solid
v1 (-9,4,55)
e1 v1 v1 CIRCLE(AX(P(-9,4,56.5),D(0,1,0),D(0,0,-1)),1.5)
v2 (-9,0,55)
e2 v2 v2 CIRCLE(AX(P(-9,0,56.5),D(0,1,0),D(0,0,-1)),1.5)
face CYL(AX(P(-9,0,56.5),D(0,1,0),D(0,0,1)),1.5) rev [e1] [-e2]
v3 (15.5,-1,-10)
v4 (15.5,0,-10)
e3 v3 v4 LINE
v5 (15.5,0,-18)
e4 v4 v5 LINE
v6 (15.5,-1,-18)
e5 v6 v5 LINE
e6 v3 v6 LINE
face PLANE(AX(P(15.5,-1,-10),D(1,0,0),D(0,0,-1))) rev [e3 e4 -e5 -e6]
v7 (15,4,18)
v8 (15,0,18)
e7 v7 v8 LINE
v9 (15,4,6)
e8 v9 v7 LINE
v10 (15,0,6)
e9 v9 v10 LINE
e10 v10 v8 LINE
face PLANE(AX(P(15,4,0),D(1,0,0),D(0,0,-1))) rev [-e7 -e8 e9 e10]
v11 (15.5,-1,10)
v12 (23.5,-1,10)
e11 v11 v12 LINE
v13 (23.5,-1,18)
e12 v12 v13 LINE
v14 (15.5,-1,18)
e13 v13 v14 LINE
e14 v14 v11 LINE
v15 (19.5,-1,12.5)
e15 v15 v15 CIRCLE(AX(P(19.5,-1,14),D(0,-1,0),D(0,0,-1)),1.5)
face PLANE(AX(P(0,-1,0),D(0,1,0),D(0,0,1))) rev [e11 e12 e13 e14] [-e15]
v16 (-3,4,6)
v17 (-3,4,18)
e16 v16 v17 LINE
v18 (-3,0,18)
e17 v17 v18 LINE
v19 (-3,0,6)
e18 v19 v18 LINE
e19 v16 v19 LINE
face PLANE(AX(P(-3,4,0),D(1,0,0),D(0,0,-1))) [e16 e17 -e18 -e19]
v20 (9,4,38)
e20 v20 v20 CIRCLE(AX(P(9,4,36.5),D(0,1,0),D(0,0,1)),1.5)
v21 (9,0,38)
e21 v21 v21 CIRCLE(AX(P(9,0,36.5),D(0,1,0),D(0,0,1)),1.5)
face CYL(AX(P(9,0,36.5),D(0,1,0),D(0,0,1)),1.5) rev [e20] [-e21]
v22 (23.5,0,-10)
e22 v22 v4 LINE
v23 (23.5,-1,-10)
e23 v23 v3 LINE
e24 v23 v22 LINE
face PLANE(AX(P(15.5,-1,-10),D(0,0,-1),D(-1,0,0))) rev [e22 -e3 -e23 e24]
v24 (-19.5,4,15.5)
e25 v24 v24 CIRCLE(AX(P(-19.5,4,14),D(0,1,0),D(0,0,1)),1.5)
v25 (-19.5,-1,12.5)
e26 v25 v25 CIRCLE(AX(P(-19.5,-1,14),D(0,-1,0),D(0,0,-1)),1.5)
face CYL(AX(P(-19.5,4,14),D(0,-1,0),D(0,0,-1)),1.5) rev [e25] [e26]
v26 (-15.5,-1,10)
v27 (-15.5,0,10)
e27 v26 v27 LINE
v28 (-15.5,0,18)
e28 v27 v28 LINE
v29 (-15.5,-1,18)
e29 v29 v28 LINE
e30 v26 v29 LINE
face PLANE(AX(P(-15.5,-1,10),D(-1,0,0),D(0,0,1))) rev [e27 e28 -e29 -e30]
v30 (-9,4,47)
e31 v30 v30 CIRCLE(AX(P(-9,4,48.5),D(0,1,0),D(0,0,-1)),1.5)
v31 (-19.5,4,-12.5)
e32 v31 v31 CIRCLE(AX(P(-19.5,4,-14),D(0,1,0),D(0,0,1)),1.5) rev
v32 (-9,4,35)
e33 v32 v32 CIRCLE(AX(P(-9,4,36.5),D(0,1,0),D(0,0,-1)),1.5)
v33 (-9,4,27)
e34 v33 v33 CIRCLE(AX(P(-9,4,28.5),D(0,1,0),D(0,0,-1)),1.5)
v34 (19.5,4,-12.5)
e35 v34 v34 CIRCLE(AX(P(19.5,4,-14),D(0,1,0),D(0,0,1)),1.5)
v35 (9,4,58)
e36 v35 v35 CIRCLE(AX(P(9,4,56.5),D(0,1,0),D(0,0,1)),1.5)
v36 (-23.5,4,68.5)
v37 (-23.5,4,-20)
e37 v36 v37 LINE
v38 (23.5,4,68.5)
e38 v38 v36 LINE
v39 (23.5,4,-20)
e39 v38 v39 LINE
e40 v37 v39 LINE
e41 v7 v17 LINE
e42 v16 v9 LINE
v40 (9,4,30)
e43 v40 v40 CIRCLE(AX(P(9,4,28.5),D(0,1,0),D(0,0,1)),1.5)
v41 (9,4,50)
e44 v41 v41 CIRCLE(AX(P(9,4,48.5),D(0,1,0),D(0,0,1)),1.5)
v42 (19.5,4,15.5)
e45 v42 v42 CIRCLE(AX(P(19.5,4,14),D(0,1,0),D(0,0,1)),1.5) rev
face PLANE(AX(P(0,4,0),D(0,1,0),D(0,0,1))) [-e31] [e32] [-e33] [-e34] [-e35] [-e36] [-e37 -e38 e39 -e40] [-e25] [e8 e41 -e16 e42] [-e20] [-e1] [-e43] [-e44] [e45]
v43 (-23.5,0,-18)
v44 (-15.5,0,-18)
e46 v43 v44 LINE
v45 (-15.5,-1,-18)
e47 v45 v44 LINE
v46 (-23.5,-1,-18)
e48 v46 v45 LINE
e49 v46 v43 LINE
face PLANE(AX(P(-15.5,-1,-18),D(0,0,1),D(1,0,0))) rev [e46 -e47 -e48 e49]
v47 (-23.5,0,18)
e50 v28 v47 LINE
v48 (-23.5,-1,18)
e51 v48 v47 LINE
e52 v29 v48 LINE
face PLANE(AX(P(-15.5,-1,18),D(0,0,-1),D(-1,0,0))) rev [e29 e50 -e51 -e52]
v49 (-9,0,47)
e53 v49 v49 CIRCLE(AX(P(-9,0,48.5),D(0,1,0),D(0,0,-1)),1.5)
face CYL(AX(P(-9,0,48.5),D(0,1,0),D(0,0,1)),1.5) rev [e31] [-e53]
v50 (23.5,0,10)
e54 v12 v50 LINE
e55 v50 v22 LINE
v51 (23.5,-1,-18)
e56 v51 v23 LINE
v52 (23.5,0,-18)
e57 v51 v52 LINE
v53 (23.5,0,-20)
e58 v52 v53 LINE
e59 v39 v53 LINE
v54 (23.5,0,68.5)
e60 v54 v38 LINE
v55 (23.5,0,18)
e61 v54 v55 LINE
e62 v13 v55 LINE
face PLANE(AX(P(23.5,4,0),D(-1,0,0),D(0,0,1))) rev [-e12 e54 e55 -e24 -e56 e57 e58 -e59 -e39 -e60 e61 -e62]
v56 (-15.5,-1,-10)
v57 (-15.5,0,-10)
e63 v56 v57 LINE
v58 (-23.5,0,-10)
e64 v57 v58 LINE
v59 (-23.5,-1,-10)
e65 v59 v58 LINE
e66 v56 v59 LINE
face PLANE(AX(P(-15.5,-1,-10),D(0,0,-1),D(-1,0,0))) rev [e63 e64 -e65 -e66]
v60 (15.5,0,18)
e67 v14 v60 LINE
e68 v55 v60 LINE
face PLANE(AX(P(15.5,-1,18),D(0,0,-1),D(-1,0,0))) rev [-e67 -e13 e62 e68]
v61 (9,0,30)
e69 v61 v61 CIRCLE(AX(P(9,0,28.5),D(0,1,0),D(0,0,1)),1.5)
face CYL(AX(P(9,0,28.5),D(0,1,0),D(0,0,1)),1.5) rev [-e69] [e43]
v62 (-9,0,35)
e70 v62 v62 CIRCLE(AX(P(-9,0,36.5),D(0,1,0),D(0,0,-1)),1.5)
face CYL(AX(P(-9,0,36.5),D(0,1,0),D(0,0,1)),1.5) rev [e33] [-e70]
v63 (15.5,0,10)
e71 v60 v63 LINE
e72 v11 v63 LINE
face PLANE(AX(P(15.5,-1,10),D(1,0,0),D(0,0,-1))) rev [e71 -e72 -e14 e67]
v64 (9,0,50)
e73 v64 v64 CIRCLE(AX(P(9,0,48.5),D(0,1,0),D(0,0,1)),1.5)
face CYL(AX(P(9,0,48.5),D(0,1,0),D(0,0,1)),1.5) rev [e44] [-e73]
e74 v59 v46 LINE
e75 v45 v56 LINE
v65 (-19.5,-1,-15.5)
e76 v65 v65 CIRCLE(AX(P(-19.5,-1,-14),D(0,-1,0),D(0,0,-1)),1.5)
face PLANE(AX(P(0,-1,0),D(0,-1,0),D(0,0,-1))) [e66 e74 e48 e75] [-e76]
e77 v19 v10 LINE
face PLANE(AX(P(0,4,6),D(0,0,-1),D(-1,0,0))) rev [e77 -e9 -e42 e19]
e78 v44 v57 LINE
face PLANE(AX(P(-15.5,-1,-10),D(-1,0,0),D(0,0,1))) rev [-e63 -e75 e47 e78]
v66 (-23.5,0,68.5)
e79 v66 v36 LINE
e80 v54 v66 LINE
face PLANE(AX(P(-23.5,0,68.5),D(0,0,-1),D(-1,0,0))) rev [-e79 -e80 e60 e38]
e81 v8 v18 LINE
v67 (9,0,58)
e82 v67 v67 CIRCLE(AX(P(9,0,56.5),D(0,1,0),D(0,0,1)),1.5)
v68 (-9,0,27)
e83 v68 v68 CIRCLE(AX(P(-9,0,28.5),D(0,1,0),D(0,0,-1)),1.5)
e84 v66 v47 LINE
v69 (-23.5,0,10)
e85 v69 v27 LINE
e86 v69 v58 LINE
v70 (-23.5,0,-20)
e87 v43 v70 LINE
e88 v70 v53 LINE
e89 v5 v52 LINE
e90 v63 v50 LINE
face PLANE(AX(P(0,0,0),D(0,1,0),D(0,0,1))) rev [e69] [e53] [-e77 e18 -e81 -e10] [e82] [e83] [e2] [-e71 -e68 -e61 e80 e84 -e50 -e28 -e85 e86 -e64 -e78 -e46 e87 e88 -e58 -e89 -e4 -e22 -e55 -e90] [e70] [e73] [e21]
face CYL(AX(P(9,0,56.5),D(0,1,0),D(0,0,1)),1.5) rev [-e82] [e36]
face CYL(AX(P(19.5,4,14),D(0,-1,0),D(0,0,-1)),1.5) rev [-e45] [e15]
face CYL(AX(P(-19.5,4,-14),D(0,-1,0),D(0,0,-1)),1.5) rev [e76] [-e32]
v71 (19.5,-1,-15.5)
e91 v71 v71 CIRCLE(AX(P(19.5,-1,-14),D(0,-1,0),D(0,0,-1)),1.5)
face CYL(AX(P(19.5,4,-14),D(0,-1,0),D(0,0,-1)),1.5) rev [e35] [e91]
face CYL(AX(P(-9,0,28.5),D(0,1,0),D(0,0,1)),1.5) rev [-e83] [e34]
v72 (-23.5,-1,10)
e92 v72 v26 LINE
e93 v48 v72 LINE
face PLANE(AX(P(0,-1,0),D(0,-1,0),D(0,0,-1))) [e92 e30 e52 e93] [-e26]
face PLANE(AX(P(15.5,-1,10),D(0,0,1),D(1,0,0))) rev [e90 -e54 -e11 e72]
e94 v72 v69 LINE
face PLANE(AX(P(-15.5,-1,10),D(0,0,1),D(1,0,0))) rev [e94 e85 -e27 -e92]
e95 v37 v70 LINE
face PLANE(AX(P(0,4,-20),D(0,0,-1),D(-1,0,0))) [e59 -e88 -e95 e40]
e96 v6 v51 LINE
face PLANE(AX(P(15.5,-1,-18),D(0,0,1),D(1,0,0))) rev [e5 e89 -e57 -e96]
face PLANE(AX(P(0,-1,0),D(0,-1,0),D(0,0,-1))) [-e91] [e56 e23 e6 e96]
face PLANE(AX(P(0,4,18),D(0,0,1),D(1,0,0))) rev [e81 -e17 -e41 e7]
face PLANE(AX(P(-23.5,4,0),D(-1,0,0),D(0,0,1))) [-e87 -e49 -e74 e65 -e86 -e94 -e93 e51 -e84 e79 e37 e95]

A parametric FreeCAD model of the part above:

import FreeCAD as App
import Part
import Sketcher

doc = App.newDocument("Part")
body = doc.addObject("PartDesign::Body", "Body")

sketch1 = doc.addObject("Sketcher::SketchObject", "Sketch")
body.addObject(sketch1)
sketch1.AttachmentSupport = (doc.XZ_Plane, [""])
sketch1.MapMode = "FlatFace"
sketch1.addGeometry(Part.LineSegment(App.Vector(-23.5, -20, 0), App.Vector(-23.5, 73.5, 0)), False)
sketch1.addGeometry(Part.LineSegment(App.Vector(-23.5, 73.5, 0), App.Vector(23.5, 73.5, 0)), False)
sketch1.addGeometry(Part.LineSegment(App.Vector(23.5, 73.5, 0), App.Vector(23.5, -20, 0)), False)
sketch1.addGeometry(Part.LineSegment(App.Vector(23.5, -20, 0), App.Vector(-23.5, -20, 0)), False)
sketch1.addGeometry(Part.Circle(App.Vector(-19.5, 14, 0), App.Vector(0, 0, 1), 1.5), False)
sketch1.addGeometry(Part.LineSegment(App.Vector(15, 18, 0), App.Vector(-3, 18, 0)), False)
sketch1.addGeometry(Part.LineSegment(App.Vector(-3, 18, 0), App.Vector(-3, 6, 0)), False)
sketch1.addGeometry(Part.LineSegment(App.Vector(-3, 6, 0), App.Vector(15, 6, 0)), False)
sketch1.addGeometry(Part.LineSegment(App.Vector(15, 6, 0), App.Vector(15, 18, 0)), False)
sketch1.addGeometry(Part.Circle(App.Vector(19.5, 14, 0), App.Vector(0, 0, 1), 1.5), False)
sketch1.addGeometry(Part.Circle(App.Vector(-19.5, -14, 0), App.Vector(0, 0, 1), 1.5), False)
sketch1.addGeometry(Part.Circle(App.Vector(19.5, -14, 0), App.Vector(0, 0, 1), 1.5), False)
sketch1.addConstraint(Sketcher.Constraint("Coincident", 0, 2, 1, 1))
sketch1.addConstraint(Sketcher.Constraint("Coincident", 1, 2, 2, 1))
sketch1.addConstraint(Sketcher.Constraint("Coincident", 2, 2, 3, 1))
sketch1.addConstraint(Sketcher.Constraint("Coincident", 3, 2, 0, 1))
sketch1.addConstraint(Sketcher.Constraint("Coincident", 5, 2, 6, 1))
sketch1.addConstraint(Sketcher.Constraint("Coincident", 6, 2, 7, 1))
sketch1.addConstraint(Sketcher.Constraint("Coincident", 7, 2, 8, 1))
sketch1.addConstraint(Sketcher.Constraint("Coincident", 8, 2, 5, 1))
sketch1.addConstraint(Sketcher.Constraint("Vertical", 0))
sketch1.addConstraint(Sketcher.Constraint("Horizontal", 1))
sketch1.addConstraint(Sketcher.Constraint("Vertical", 2))
sketch1.addConstraint(Sketcher.Constraint("Horizontal", 3))
sketch1.addConstraint(Sketcher.Constraint("Horizontal", 5))
sketch1.addConstraint(Sketcher.Constraint("Vertical", 6))
sketch1.addConstraint(Sketcher.Constraint("Horizontal", 7))
sketch1.addConstraint(Sketcher.Constraint("Vertical", 8))
sketch1.addConstraint(Sketcher.Constraint("Equal", 4, 9))
sketch1.addConstraint(Sketcher.Constraint("Equal", 9, 10))
sketch1.addConstraint(Sketcher.Constraint("Equal", 10, 11))
sketch1.addConstraint(Sketcher.Constraint("Symmetric", 9, 3, 10, 3, -1, 1))
sketch1.addConstraint(Sketcher.Constraint("Symmetric", 4, 3, 11, 3, -1, 1))
sketch1.addConstraint(Sketcher.Constraint("Symmetric", 4, 3, 9, 3, -2))
sketch1.addConstraint(Sketcher.Constraint("Diameter", 4, 3.0))
sketch1.addConstraint(Sketcher.Constraint("DistanceX", 1, 1, 1, 2, 47.0))
sketch1.addConstraint(Sketcher.Constraint("DistanceX", 5, 2, 5, 1, 18.0))
sketch1.addConstraint(Sketcher.Constraint("DistanceY", 6, 2, 6, 1, 12.0))
sketch1.addConstraint(Sketcher.Constraint("DistanceY", 0, 1, 0, 2, 93.5))
sketch1.addConstraint(Sketcher.Constraint("DistanceY", -1, 1, 4, 3, 14.0))
sketch1.addConstraint(Sketcher.Constraint("DistanceY", 2, 2, -1, 1, 20.0))
sketch1.addConstraint(Sketcher.Constraint("DistanceX", 5, 2, -1, 1, 3.0))
sketch1.addConstraint(Sketcher.Constraint("DistanceY", -1, 1, 5, 2, 18.0))
sketch1.addConstraint(Sketcher.Constraint("DistanceX", 4, 3, 9, 3, 39.0))
sketch1.addConstraint(Sketcher.Constraint("DistanceX", 0, 2, 4, 3, 4.0))
pad1 = doc.addObject("PartDesign::Pad", "Pad")
body.addObject(pad1)
pad1.Profile = sketch1
pad1.Length = 4
pad1.Reversed = True

sketch2 = doc.addObject("Sketcher::SketchObject", "Sketch001")
body.addObject(sketch2)
sketch2.AttachmentSupport = (doc.XZ_Plane, [""])
sketch2.MapMode = "FlatFace"
sketch2.AttachmentOffset = App.Placement(App.Vector(0, 0, 1), App.Rotation())
sketch2.addGeometry(Part.LineSegment(App.Vector(15.5, -10, 0), App.Vector(15.5, -18, 0)), False)
sketch2.addGeometry(Part.LineSegment(App.Vector(15.5, -18, 0), App.Vector(23.5, -18, 0)), False)
sketch2.addGeometry(Part.LineSegment(App.Vector(23.5, -18, 0), App.Vector(23.5, -10, 0)), False)
sketch2.addGeometry(Part.LineSegment(App.Vector(23.5, -10, 0), App.Vector(15.5, -10, 0)), False)
sketch2.addGeometry(Part.Circle(App.Vector(19.5, -14, 0), App.Vector(0, 0, 1), 1.5), False)
sketch2.addGeometry(Part.LineSegment(App.Vector(15.5, 18, 0), App.Vector(15.5, 10, 0)), False)
sketch2.addGeometry(Part.LineSegment(App.Vector(15.5, 10, 0), App.Vector(23.5, 10, 0)), False)
sketch2.addGeometry(Part.LineSegment(App.Vector(23.5, 10, 0), App.Vector(23.5, 18, 0)), False)
sketch2.addGeometry(Part.LineSegment(App.Vector(23.5, 18, 0), App.Vector(15.5, 18, 0)), False)
sketch2.addGeometry(Part.Circle(App.Vector(19.5, 14, 0), App.Vector(0, 0, 1), 1.5), False)
sketch2.addGeometry(Part.LineSegment(App.Vector(-23.5, -10, 0), App.Vector(-23.5, -18, 0)), False)
sketch2.addGeometry(Part.LineSegment(App.Vector(-23.5, -18, 0), App.Vector(-15.5, -18, 0)), False)
sketch2.addGeometry(Part.LineSegment(App.Vector(-15.5, -18, 0), App.Vector(-15.5, -10, 0)), False)
sketch2.addGeometry(Part.LineSegment(App.Vector(-15.5, -10, 0), App.Vector(-23.5, -10, 0)), False)
sketch2.addGeometry(Part.Circle(App.Vector(-19.5, -14, 0), App.Vector(0, 0, 1), 1.5), False)
sketch2.addGeometry(Part.LineSegment(App.Vector(-23.5, 18, 0), App.Vector(-23.5, 10, 0)), False)
sketch2.addGeometry(Part.LineSegment(App.Vector(-23.5, 10, 0), App.Vector(-15.5, 10, 0)), False)
sketch2.addGeometry(Part.LineSegment(App.Vector(-15.5, 10, 0), App.Vector(-15.5, 18, 0)), False)
sketch2.addGeometry(Part.LineSegment(App.Vector(-15.5, 18, 0), App.Vector(-23.5, 18, 0)), False)
sketch2.addGeometry(Part.Circle(App.Vector(-19.5, 14, 0), App.Vector(0, 0, 1), 1.5), False)
sketch2.addConstraint(Sketcher.Constraint("Coincident", 0, 2, 1, 1))
sketch2.addConstraint(Sketcher.Constraint("Coincident", 1, 2, 2, 1))
sketch2.addConstraint(Sketcher.Constraint("Coincident", 2, 2, 3, 1))
sketch2.addConstraint(Sketcher.Constraint("Coincident", 3, 2, 0, 1))
sketch2.addConstraint(Sketcher.Constraint("Coincident", 5, 2, 6, 1))
sketch2.addConstraint(Sketcher.Constraint("Coincident", 6, 2, 7, 1))
sketch2.addConstraint(Sketcher.Constraint("Coincident", 7, 2, 8, 1))
sketch2.addConstraint(Sketcher.Constraint("Coincident", 8, 2, 5, 1))
sketch2.addConstraint(Sketcher.Constraint("Coincident", 10, 2, 11, 1))
sketch2.addConstraint(Sketcher.Constraint("Coincident", 11, 2, 12, 1))
sketch2.addConstraint(Sketcher.Constraint("Coincident", 12, 2, 13, 1))
sketch2.addConstraint(Sketcher.Constraint("Coincident", 13, 2, 10, 1))
sketch2.addConstraint(Sketcher.Constraint("Coincident", 15, 2, 16, 1))
sketch2.addConstraint(Sketcher.Constraint("Coincident", 16, 2, 17, 1))
sketch2.addConstraint(Sketcher.Constraint("Coincident", 17, 2, 18, 1))
sketch2.addConstraint(Sketcher.Constraint("Coincident", 18, 2, 15, 1))
sketch2.addConstraint(Sketcher.Constraint("Vertical", 0))
sketch2.addConstraint(Sketcher.Constraint("Horizontal", 1))
sketch2.addConstraint(Sketcher.Constraint("Vertical", 2))
sketch2.addConstraint(Sketcher.Constraint("Horizontal", 3))
sketch2.addConstraint(Sketcher.Constraint("Vertical", 5))
sketch2.addConstraint(Sketcher.Constraint("Horizontal", 6))
sketch2.addConstraint(Sketcher.Constraint("Vertical", 7))
sketch2.addConstraint(Sketcher.Constraint("Horizontal", 8))
sketch2.addConstraint(Sketcher.Constraint("Vertical", 10))
sketch2.addConstraint(Sketcher.Constraint("Horizontal", 11))
sketch2.addConstraint(Sketcher.Constraint("Vertical", 12))
sketch2.addConstraint(Sketcher.Constraint("Horizontal", 13))
sketch2.addConstraint(Sketcher.Constraint("Vertical", 15))
sketch2.addConstraint(Sketcher.Constraint("Horizontal", 16))
sketch2.addConstraint(Sketcher.Constraint("Vertical", 17))
sketch2.addConstraint(Sketcher.Constraint("Horizontal", 18))
sketch2.addConstraint(Sketcher.Constraint("Equal", 4, 9))
sketch2.addConstraint(Sketcher.Constraint("Equal", 9, 14))
sketch2.addConstraint(Sketcher.Constraint("Equal", 14, 19))
sketch2.addConstraint(Sketcher.Constraint("Symmetric", 9, 3, 14, 3, -1, 1))
sketch2.addConstraint(Sketcher.Constraint("Symmetric", 4, 3, 19, 3, -1, 1))
sketch2.addConstraint(Sketcher.Constraint("Symmetric", 7, 2, 10, 2, -1, 1))
sketch2.addConstraint(Sketcher.Constraint("Symmetric", 5, 2, 12, 2, -1, 1))
sketch2.addConstraint(Sketcher.Constraint("Symmetric", 2, 2, 15, 2, -1, 1))
sketch2.addConstraint(Sketcher.Constraint("Symmetric", 0, 2, 17, 2, -1, 1))
sketch2.addConstraint(Sketcher.Constraint("Symmetric", 4, 3, 14, 3, -2))
sketch2.addConstraint(Sketcher.Constraint("Symmetric", 1, 2, 10, 2, -2))
sketch2.addConstraint(Sketcher.Constraint("Symmetric", 3, 2, 12, 2, -2))
sketch2.addConstraint(Sketcher.Constraint("Equal", 18, 0))
sketch2.addConstraint(Sketcher.Constraint("Diameter", 4, 3.0))
sketch2.addConstraint(Sketcher.Constraint("DistanceX", 1, 1, 1, 2, 8.0))
sketch2.addConstraint(Sketcher.Constraint("DistanceY", 4, 3, -1, 1, 14.0))
sketch2.addConstraint(Sketcher.Constraint("DistanceY", 0, 2, -1, 1, 18.0))
sketch2.addConstraint(Sketcher.Constraint("DistanceX", 14, 3, 4, 3, 39.0))
sketch2.addConstraint(Sketcher.Constraint("DistanceX", 0, 2, 4, 3, 4.0))
pad2 = doc.addObject("PartDesign::Pad", "Pad001")
body.addObject(pad2)
pad2.Profile = sketch2
pad2.Length = 1
pad2.Reversed = True

sketch3 = doc.addObject("Sketcher::SketchObject", "Sketch002")
body.addObject(sketch3)
sketch3.AttachmentSupport = (doc.XZ_Plane, [""])
sketch3.MapMode = "FlatFace"
sketch3.AttachmentOffset = App.Placement(App.Vector(0, 0, -4), App.Rotation())
sketch3.addGeometry(Part.Circle(App.Vector(9, 28.5, 0), App.Vector(0, 0, 1), 1.5), False)
sketch3.addGeometry(Part.Circle(App.Vector(9, 48.5, 0), App.Vector(0, 0, 1), 1.5), False)
sketch3.addGeometry(Part.Circle(App.Vector(-9, 48.5, 0), App.Vector(0, 0, 1), 1.5), False)
sketch3.addGeometry(Part.Circle(App.Vector(-9, 28.5, 0), App.Vector(0, 0, 1), 1.5), False)
sketch3.addGeometry(Part.Circle(App.Vector(-9, 36.5, 0), App.Vector(0, 0, 1), 1.5), False)
sketch3.addGeometry(Part.Circle(App.Vector(9, 36.5, 0), App.Vector(0, 0, 1), 1.5), False)
sketch3.addGeometry(Part.Circle(App.Vector(9, 56.5, 0), App.Vector(0, 0, 1), 1.5), False)
sketch3.addGeometry(Part.Circle(App.Vector(-9, 56.5, 0), App.Vector(0, 0, 1), 1.5), False)
sketch3.addGeometry(Part.LineSegment(App.Vector(-23.5, 68.5, 0), App.Vector(-23.5, 73.5, 0)), False)
sketch3.addGeometry(Part.LineSegment(App.Vector(-23.5, 73.5, 0), App.Vector(23.5, 73.5, 0)), False)
sketch3.addGeometry(Part.LineSegment(App.Vector(23.5, 73.5, 0), App.Vector(23.5, 68.5, 0)), False)
sketch3.addGeometry(Part.LineSegment(App.Vector(23.5, 68.5, 0), App.Vector(-23.5, 68.5, 0)), False)
sketch3.addConstraint(Sketcher.Constraint("Coincident", 8, 2, 9, 1))
sketch3.addConstraint(Sketcher.Constraint("Coincident", 9, 2, 10, 1))
sketch3.addConstraint(Sketcher.Constraint("Coincident", 10, 2, 11, 1))
sketch3.addConstraint(Sketcher.Constraint("Coincident", 11, 2, 8, 1))
sketch3.addConstraint(Sketcher.Constraint("Vertical", 8))
sketch3.addConstraint(Sketcher.Constraint("Horizontal", 9))
sketch3.addConstraint(Sketcher.Constraint("Vertical", 10))
sketch3.addConstraint(Sketcher.Constraint("Horizontal", 11))
sketch3.addConstraint(Sketcher.Constraint("Equal", 0, 1))
sketch3.addConstraint(Sketcher.Constraint("Equal", 1, 2))
sketch3.addConstraint(Sketcher.Constraint("Equal", 2, 3))
sketch3.addConstraint(Sketcher.Constraint("Equal", 3, 4))
sketch3.addConstraint(Sketcher.Constraint("Equal", 4, 5))
sketch3.addConstraint(Sketcher.Constraint("Equal", 5, 6))
sketch3.addConstraint(Sketcher.Constraint("Equal", 6, 7))
sketch3.addConstraint(Sketcher.Constraint("Symmetric", 1, 3, 2, 3, -2))
sketch3.addConstraint(Sketcher.Constraint("Symmetric", 0, 3, 3, 3, -2))
sketch3.addConstraint(Sketcher.Constraint("Symmetric", 4, 3, 5, 3, -2))
sketch3.addConstraint(Sketcher.Constraint("Symmetric", 6, 3, 7, 3, -2))
sketch3.addConstraint(Sketcher.Constraint("Vertical", 0, 3, 1, 3))
sketch3.addConstraint(Sketcher.Constraint("Vertical", 3, 3, 4, 3))
sketch3.addConstraint(Sketcher.Constraint("Vertical", 5, 3, 6, 3))
sketch3.addConstraint(Sketcher.Constraint("Diameter", 0, 3.0))
sketch3.addConstraint(Sketcher.Constraint("DistanceX", 9, 1, 9, 2, 47.0))
sketch3.addConstraint(Sketcher.Constraint("DistanceY", 8, 1, 8, 2, 5.0))
sketch3.addConstraint(Sketcher.Constraint("DistanceX", -1, 1, 0, 3, 9.0))
sketch3.addConstraint(Sketcher.Constraint("DistanceY", 0, 3, 1, 3, 20.0))
sketch3.addConstraint(Sketcher.Constraint("DistanceY", 3, 3, 4, 3, 8.0))
sketch3.addConstraint(Sketcher.Constraint("DistanceY", 1, 3, 6, 3, 8.0))
sketch3.addConstraint(Sketcher.Constraint("DistanceY", 7, 3, 8, 2, 17.0))
sketch3.addConstraint(Sketcher.Constraint("DistanceY", -1, 1, 0, 3, 28.5))
sketch3.addConstraint(Sketcher.Constraint("DistanceX", 8, 2, -1, 1, 23.5))
pocket1 = doc.addObject("PartDesign::Pocket", "Pocket")
body.addObject(pocket1)
pocket1.Profile = sketch3
pocket1.Length = 4
pocket1.Reversed = True

doc.recompute()
